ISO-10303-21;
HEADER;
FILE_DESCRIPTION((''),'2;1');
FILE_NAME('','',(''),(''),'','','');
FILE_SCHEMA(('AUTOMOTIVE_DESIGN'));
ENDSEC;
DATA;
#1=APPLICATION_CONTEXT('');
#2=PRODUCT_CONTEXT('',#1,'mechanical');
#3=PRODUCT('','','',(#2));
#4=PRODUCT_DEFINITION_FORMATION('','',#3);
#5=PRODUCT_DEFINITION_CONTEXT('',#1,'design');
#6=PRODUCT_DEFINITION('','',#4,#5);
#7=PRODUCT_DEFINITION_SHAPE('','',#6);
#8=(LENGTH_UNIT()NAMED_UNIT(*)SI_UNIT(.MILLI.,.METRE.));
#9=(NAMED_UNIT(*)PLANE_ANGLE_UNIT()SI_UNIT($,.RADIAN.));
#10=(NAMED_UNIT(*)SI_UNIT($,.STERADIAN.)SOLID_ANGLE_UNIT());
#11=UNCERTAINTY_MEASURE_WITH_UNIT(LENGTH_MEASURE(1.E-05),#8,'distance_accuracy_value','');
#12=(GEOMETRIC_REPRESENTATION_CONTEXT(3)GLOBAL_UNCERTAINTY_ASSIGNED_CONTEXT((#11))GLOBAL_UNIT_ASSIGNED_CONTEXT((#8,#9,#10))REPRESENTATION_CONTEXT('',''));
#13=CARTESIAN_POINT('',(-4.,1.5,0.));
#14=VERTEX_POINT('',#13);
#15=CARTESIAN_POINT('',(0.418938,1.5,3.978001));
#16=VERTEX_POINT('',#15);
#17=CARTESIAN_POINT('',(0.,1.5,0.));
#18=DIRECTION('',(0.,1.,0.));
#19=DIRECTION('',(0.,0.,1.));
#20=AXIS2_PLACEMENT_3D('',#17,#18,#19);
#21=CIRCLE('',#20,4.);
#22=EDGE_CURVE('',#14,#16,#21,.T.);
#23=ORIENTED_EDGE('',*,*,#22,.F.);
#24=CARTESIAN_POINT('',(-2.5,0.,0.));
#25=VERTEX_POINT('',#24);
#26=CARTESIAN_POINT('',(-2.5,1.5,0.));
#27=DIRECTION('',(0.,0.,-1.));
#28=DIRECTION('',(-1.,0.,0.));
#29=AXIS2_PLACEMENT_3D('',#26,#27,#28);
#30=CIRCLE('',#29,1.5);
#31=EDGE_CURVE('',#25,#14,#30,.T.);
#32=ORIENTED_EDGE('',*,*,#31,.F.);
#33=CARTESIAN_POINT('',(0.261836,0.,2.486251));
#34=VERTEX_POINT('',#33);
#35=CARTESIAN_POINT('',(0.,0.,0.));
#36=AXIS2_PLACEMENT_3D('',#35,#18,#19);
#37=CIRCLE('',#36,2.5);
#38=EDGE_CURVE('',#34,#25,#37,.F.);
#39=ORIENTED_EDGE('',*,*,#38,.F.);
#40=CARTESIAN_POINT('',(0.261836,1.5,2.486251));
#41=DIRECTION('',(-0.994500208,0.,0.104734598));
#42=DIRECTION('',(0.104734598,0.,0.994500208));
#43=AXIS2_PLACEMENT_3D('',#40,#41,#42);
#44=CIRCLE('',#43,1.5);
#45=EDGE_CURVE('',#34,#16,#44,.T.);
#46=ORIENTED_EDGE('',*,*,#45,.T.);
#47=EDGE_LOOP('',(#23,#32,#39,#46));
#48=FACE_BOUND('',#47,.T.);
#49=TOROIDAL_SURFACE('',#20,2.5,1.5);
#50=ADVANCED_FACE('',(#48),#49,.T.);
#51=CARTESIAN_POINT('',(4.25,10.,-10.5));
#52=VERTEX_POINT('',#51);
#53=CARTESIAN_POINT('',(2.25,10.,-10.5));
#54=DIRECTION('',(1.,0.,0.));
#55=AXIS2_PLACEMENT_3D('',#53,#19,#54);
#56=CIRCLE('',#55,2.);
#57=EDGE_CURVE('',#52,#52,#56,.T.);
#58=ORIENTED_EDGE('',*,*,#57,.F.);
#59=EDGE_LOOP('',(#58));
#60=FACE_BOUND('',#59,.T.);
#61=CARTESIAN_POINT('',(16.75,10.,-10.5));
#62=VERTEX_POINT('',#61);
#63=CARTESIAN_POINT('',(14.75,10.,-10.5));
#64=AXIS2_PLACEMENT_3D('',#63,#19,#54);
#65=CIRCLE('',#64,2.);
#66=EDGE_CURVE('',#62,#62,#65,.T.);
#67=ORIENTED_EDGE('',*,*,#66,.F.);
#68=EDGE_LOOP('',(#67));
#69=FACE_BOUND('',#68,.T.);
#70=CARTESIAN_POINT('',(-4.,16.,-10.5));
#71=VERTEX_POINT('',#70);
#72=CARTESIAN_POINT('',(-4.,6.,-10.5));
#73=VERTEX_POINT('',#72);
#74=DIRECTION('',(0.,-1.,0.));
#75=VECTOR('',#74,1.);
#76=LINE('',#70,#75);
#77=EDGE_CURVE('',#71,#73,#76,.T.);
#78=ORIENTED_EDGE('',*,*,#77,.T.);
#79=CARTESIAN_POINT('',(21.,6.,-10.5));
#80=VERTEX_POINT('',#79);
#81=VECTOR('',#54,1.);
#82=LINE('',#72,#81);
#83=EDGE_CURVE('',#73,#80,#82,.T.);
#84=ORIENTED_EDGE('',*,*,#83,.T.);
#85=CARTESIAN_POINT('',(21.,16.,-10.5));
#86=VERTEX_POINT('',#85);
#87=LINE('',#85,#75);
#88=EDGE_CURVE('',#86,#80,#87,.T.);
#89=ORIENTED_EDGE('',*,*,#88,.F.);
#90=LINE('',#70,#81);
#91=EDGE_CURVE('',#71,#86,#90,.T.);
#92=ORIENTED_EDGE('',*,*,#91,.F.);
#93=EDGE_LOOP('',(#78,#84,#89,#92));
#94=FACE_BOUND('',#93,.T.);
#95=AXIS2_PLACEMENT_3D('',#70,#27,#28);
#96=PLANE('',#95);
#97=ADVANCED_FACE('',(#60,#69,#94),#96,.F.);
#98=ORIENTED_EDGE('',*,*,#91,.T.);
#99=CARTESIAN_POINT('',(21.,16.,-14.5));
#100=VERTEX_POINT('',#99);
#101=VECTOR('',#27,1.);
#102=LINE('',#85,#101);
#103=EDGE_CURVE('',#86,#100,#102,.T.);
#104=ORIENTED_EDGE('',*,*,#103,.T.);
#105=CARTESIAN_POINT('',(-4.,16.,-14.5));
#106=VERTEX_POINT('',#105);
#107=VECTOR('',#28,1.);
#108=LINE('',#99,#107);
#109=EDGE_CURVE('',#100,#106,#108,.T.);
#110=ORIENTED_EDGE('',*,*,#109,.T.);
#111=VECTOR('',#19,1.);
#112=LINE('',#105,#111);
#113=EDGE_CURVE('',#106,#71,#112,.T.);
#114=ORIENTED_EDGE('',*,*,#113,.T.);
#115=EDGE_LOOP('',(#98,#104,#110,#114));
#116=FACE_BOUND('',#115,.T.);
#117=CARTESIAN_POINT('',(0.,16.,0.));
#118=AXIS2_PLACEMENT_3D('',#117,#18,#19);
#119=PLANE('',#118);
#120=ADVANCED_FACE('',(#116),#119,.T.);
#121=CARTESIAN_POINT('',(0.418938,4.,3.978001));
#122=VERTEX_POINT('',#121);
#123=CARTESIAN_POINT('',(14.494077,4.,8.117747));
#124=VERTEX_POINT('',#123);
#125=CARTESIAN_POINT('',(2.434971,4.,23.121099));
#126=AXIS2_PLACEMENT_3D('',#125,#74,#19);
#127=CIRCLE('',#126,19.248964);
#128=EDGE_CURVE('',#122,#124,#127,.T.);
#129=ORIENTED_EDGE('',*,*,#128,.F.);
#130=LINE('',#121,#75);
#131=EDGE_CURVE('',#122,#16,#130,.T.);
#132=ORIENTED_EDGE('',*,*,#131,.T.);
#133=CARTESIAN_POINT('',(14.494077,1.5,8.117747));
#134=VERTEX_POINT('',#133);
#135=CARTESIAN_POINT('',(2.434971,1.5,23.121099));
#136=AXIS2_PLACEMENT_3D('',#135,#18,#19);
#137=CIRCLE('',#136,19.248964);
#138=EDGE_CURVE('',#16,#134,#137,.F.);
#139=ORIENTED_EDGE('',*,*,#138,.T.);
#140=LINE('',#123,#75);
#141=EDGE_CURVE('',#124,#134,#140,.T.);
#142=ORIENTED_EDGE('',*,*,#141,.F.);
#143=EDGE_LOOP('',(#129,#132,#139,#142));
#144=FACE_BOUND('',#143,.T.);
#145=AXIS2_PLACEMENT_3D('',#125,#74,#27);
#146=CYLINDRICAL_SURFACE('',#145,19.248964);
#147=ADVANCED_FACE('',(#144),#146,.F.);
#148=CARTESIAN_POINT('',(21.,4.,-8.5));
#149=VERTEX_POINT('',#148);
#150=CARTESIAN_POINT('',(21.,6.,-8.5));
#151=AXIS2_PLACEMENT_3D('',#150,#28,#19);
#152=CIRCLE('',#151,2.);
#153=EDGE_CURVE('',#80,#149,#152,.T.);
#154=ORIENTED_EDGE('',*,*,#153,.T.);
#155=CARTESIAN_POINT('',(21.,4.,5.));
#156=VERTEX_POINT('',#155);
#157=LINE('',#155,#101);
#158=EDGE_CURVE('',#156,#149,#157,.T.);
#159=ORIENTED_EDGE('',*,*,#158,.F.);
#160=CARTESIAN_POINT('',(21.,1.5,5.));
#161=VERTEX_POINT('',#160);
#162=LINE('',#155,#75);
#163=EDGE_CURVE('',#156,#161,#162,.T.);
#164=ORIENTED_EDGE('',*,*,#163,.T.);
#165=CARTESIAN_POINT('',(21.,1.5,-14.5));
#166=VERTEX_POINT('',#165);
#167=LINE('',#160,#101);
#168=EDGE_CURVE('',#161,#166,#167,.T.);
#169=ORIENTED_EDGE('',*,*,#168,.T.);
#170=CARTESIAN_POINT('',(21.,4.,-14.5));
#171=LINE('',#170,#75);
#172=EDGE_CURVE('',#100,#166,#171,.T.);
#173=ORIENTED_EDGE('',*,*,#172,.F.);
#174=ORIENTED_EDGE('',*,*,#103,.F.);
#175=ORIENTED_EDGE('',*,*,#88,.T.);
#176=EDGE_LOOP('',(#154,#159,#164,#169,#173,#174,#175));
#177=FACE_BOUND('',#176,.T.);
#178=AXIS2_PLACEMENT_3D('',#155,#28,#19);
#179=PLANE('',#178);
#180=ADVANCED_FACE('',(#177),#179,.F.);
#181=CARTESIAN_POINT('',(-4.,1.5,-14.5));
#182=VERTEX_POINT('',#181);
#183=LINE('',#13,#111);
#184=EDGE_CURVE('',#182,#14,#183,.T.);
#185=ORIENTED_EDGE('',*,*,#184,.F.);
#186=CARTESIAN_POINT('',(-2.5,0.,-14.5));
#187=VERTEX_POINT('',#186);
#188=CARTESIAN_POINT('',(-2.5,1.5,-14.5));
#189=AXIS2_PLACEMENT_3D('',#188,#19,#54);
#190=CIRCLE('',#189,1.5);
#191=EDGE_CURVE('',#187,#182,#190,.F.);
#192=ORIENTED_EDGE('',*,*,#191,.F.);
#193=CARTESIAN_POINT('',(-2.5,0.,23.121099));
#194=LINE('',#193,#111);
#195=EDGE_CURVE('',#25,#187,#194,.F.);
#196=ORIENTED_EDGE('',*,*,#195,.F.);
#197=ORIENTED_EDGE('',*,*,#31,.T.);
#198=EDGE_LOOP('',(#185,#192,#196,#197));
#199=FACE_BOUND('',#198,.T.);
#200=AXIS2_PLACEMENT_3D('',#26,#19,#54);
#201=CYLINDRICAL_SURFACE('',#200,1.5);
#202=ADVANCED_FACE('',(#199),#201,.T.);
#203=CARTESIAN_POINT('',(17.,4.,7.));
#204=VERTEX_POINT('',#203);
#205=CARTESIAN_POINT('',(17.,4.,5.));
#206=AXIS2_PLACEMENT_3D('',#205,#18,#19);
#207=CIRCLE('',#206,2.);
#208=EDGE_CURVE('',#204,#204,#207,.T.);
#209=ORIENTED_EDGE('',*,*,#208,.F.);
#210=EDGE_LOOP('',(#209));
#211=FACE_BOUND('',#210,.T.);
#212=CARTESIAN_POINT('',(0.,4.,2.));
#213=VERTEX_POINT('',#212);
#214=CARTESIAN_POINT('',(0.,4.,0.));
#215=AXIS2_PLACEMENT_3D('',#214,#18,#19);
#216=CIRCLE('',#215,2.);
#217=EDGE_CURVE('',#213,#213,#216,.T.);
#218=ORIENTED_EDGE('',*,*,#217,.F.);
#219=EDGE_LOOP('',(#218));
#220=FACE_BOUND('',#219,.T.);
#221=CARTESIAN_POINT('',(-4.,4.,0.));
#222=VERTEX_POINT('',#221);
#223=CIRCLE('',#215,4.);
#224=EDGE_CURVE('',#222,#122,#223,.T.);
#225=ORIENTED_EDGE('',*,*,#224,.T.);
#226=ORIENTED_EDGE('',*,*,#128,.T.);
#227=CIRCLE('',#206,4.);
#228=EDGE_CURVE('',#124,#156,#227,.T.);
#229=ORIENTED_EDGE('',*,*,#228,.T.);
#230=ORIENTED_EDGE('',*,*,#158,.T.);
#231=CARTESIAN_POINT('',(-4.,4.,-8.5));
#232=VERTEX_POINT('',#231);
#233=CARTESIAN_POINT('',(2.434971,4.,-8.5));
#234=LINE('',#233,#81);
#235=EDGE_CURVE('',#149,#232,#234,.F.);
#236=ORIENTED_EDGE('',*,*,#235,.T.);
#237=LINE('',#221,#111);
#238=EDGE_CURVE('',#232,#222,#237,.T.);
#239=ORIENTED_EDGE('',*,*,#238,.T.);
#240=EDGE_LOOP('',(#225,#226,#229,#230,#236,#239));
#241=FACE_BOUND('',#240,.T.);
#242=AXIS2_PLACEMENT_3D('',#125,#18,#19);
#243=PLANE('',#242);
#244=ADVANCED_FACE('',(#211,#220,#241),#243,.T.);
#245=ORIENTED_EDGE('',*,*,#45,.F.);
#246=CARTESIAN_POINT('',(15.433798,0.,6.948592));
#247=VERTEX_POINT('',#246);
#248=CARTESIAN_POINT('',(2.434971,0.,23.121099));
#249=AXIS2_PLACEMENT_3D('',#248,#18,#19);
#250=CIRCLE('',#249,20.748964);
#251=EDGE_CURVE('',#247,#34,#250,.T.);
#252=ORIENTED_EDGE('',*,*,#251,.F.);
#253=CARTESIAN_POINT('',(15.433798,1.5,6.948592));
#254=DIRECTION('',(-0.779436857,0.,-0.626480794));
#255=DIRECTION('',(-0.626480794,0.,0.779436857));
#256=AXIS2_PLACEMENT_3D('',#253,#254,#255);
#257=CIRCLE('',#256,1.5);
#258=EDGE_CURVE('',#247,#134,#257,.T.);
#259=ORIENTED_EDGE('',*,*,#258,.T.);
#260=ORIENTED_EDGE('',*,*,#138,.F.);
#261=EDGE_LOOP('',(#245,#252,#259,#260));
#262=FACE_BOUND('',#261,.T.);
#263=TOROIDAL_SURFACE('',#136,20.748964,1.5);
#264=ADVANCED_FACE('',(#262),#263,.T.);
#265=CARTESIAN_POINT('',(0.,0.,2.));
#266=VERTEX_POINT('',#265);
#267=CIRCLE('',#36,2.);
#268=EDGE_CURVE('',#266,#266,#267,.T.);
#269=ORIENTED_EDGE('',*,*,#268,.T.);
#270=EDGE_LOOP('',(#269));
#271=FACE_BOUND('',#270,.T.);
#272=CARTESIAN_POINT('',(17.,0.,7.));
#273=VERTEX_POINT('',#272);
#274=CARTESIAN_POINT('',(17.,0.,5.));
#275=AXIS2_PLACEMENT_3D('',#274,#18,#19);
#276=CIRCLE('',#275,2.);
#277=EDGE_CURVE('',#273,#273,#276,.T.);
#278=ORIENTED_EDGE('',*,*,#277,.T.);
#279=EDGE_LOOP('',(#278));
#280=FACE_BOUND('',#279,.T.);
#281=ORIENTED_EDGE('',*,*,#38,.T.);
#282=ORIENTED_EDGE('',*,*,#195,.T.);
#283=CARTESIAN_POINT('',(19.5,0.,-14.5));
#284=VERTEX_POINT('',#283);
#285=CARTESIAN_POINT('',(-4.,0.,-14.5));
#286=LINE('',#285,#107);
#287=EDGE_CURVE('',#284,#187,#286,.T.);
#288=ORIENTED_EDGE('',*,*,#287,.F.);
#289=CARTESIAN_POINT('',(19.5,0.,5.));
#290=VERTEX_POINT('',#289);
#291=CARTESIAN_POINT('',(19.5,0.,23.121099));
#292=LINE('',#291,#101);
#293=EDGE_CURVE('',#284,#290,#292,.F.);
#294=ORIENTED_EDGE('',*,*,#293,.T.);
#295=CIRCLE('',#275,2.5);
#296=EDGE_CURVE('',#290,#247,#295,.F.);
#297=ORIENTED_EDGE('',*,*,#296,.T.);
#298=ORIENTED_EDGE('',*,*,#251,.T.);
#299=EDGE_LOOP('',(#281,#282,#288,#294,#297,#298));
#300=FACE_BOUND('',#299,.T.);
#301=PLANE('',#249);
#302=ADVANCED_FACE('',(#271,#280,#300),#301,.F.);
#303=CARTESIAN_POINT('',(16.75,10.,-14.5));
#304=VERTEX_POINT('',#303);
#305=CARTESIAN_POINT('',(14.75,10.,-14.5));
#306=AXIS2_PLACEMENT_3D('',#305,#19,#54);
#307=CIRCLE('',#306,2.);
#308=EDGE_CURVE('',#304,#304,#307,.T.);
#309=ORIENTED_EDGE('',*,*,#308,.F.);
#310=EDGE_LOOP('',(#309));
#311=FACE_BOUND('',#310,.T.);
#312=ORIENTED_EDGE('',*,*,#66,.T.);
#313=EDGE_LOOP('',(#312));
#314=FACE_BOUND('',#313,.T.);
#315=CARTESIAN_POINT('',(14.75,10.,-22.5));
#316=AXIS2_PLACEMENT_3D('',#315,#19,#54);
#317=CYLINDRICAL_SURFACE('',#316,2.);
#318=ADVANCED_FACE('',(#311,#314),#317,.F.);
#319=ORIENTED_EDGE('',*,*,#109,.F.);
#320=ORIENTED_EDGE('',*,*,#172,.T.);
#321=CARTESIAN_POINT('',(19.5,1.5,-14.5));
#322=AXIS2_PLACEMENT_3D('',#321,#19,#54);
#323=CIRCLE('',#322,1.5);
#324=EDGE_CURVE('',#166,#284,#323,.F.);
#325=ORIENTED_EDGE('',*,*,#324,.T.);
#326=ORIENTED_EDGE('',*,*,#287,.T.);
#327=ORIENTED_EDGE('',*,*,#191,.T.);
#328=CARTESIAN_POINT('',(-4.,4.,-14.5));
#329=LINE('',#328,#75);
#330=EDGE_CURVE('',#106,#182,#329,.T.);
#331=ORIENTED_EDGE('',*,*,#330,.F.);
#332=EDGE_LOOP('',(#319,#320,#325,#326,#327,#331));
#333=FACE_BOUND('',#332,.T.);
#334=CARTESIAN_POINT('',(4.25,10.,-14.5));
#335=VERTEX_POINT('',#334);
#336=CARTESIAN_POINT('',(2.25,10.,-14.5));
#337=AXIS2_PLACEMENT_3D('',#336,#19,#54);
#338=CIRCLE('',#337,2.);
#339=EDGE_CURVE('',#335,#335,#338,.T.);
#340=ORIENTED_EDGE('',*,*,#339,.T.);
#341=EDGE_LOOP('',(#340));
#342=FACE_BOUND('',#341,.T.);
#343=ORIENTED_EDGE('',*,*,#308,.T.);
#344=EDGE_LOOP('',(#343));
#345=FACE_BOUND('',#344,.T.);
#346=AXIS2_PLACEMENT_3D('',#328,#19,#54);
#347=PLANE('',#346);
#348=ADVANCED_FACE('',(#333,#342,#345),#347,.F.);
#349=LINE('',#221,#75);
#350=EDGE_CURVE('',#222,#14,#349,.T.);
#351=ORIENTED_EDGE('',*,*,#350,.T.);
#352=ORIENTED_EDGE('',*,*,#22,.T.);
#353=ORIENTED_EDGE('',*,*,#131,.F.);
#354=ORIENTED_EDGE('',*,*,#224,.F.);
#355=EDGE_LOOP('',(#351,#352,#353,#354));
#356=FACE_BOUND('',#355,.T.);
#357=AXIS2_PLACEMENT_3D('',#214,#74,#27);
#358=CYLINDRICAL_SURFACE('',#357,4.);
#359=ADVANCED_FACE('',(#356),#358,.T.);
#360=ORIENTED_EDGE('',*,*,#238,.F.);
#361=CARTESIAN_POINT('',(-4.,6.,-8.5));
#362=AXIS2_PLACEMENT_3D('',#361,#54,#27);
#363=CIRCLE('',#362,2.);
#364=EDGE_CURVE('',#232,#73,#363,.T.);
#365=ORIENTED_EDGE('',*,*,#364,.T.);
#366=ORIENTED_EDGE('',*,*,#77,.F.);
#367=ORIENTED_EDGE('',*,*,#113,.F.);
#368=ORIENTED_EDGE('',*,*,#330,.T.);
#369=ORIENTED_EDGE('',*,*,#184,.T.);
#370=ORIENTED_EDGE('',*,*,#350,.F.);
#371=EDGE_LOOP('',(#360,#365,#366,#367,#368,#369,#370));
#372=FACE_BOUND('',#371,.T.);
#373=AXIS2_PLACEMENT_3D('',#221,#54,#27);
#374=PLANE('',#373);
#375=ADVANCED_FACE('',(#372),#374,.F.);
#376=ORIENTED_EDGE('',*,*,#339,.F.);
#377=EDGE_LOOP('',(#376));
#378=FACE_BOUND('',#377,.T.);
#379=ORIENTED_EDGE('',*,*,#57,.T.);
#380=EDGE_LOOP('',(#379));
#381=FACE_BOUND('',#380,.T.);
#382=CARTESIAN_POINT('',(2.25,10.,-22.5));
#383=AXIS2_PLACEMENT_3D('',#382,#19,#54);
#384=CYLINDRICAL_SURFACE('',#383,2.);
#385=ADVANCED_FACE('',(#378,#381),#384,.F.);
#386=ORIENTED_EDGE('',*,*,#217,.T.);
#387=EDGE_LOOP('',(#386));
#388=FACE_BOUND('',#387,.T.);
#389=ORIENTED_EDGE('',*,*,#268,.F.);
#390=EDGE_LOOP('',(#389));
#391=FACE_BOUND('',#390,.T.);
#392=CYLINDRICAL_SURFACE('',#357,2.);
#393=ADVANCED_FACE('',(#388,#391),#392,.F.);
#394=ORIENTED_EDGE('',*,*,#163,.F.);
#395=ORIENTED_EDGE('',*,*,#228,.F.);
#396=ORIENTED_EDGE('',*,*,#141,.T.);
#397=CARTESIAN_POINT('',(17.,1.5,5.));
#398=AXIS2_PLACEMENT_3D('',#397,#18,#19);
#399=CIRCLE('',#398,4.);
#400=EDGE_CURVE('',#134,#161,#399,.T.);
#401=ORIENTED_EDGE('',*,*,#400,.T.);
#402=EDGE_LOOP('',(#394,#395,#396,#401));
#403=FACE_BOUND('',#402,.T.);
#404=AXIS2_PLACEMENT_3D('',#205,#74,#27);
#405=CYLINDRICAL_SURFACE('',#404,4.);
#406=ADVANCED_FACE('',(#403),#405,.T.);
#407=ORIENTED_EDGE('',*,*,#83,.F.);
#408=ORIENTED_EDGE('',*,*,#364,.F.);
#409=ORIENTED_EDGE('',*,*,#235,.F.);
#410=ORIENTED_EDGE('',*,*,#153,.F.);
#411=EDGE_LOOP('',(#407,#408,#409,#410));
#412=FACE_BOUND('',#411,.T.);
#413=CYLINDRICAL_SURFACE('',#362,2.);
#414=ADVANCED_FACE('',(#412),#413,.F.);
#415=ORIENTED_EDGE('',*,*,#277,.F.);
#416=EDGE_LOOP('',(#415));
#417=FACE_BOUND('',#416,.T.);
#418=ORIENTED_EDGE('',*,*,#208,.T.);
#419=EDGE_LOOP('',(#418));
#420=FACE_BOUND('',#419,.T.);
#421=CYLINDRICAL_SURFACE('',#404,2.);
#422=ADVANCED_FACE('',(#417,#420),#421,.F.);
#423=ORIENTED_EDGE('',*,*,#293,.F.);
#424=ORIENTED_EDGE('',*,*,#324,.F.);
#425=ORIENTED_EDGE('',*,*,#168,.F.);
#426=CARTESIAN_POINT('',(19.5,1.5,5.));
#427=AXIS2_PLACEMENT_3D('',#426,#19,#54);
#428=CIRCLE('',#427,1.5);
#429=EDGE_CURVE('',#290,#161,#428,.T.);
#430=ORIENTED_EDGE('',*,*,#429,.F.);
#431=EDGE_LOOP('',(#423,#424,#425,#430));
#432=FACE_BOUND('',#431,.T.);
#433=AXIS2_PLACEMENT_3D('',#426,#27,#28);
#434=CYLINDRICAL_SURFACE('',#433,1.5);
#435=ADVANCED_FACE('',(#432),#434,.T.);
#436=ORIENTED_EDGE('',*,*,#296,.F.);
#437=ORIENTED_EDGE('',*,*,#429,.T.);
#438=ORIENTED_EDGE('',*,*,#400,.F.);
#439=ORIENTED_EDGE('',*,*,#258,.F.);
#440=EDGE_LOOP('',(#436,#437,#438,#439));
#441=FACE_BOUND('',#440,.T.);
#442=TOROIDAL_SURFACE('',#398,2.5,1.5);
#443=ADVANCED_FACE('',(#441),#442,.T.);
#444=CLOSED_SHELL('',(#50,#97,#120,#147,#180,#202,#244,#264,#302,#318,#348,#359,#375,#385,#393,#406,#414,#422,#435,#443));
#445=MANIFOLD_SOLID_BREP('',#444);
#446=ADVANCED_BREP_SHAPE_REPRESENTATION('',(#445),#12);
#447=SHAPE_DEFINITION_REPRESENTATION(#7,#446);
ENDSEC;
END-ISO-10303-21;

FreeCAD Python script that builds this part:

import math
import FreeCAD as App
import Part
import Sketcher
from FreeCAD import Vector


def edges_at(feature, points):
    """Names of the edges that pass closest to the given points."""
    edges = feature.Shape.Edges
    near = lambda p: min(range(len(edges)), key=lambda i: edges[i].distToShape(Part.Vertex(*p))[0])
    return sorted({f"Edge{near(p) + 1}" for p in points})

doc = App.newDocument("Part")
body = doc.addObject("PartDesign::Body", "Body")

# Sketch on XZ plane
sketch1 = body.newObject("Sketcher::SketchObject", "Sketch")
sketch1.AttachmentSupport = (doc.getObject("XZ_Plane"), [""])
sketch1.MapMode = "FlatFace"
sketch1.addGeometry([
    Part.LineSegment(Vector(21, -14.5, 0), Vector(-4, -14.5, 0)),  # 0
    Part.LineSegment(Vector(-4, -14.5, 0), Vector(-4, 0, 0)),  # 1
    Part.ArcOfCircle(Part.Circle(Vector(0, 0, 0), Vector(0, 0, 1), 4), math.radians(83.988124), math.radians(180)),  # 2
    Part.ArcOfCircle(Part.Circle(Vector(2.434971, 23.121099, 0), Vector(0, 0, 1), 19.248964), math.radians(-96.011876), math.radians(-51.209043)),  # 3
    Part.ArcOfCircle(Part.Circle(Vector(17, 5, 0), Vector(0, 0, 1), 4), math.radians(0), math.radians(128.790957)),  # 4
    Part.LineSegment(Vector(21, 5, 0), Vector(21, -14.5, 0)),  # 5
    Part.Circle(Vector(17, 5, 0), Vector(0, 0, 1), 2),  # 6
    Part.Circle(Vector(0, 0, 0), Vector(0, 0, 1), 2),  # 7
], False)
sketch1.addConstraint([
    Sketcher.Constraint("Coincident", 0, 2, 1, 1),
    Sketcher.Constraint("Coincident", 1, 2, 2, 2),
    Sketcher.Constraint("Coincident", 2, 1, 3, 1),
    Sketcher.Constraint("Coincident", 3, 2, 4, 2),
    Sketcher.Constraint("Coincident", 4, 1, 5, 1),
    Sketcher.Constraint("Coincident", 5, 2, 0, 1),
    Sketcher.Constraint("Horizontal", 0),
    Sketcher.Constraint("Vertical", 1),
    Sketcher.Constraint("Vertical", 5),
    Sketcher.Constraint("Coincident", 2, 3, -1, 1),
    Sketcher.Constraint("Coincident", 7, 3, -1, 1),
    Sketcher.Constraint("Coincident", 6, 3, 4, 3),
    Sketcher.Constraint("PointOnObject", 1, 2, -1),
    Sketcher.Constraint("Diameter", 6, 4.0),
    Sketcher.Constraint("Diameter", 7, 4.0),
    Sketcher.Constraint("Radius", 2, 4.0),
    Sketcher.Constraint("Radius", 4, 4.0),
    Sketcher.Constraint("DistanceX", 0, 2, 0, 1, 25.0),
    Sketcher.Constraint("DistanceY", 1, 1, 1, 2, 14.5),
    Sketcher.Constraint("DistanceY", 5, 2, 5, 1, 19.5),
    Sketcher.Constraint("DistanceY", -1, 1, 4, 3, 5.0),
    Sketcher.Constraint("DistanceY", -1, 1, 2, 1, 3.978001),
    Sketcher.Constraint("Radius", 3, 19.248964),
    Sketcher.Constraint("DistanceX", 2, 1, 3, 2, 14.075138),
])
pad1 = body.newObject("PartDesign::Pad", "Pad")
pad1.Profile = sketch1
pad1.Length = 4
pad1.Reversed = True

# Sketch on XZ plane
sketch2 = body.newObject("Sketcher::SketchObject", "Sketch001")
sketch2.AttachmentSupport = (doc.getObject("XZ_Plane"), [""])
sketch2.MapMode = "FlatFace"
sketch2.AttachmentOffset = App.Placement(Vector(0, 0, -4), App.Rotation())
sketch2.addGeometry([
    Part.LineSegment(Vector(-4, -14.5, 0), Vector(-4, -10.5, 0)),
    Part.LineSegment(Vector(-4, -10.5, 0), Vector(21, -10.5, 0)),
    Part.LineSegment(Vector(21, -10.5, 0), Vector(21, -14.5, 0)),
    Part.LineSegment(Vector(21, -14.5, 0), Vector(-4, -14.5, 0)),
], False)
sketch2.addConstraint([
    Sketcher.Constraint("Coincident", 0, 2, 1, 1),
    Sketcher.Constraint("Coincident", 1, 2, 2, 1),
    Sketcher.Constraint("Coincident", 2, 2, 3, 1),
    Sketcher.Constraint("Coincident", 3, 2, 0, 1),
    Sketcher.Constraint("Vertical", 0),
    Sketcher.Constraint("Horizontal", 1),
    Sketcher.Constraint("Vertical", 2),
    Sketcher.Constraint("Horizontal", 3),
    Sketcher.Constraint("DistanceX", 1, 1, 1, 2, 25.0),
    Sketcher.Constraint("DistanceY", 0, 1, 0, 2, 4.0),
    Sketcher.Constraint("DistanceX", 0, 2, -1, 1, 4.0),
    Sketcher.Constraint("DistanceY", 0, 2, -1, 1, 10.5),
])
pad2 = body.newObject("PartDesign::Pad", "Pad001")
pad2.Profile = sketch2
pad2.Length = 12
pad2.Reversed = True

# Sketch on XY plane
sketch3 = body.newObject("Sketcher::SketchObject", "Sketch002")
sketch3.AttachmentSupport = (doc.getObject("XY_Plane"), [""])
sketch3.MapMode = "FlatFace"
sketch3.AttachmentOffset = App.Placement(Vector(0, 0, -10.5), App.Rotation())
sketch3.addGeometry([
    Part.Circle(Vector(2.2, 10, 0), Vector(0, 0, 1), 2),
    Part.Circle(Vector(14.8, 10, 0), Vector(0, 0, 1), 2),
], False)
sketch3.addConstraint([
    Sketcher.Constraint("Equal", 0, 1),
    Sketcher.Constraint("Horizontal", 0, 3, 1, 3),
    Sketcher.Constraint("Diameter", 0, 4.0),
    Sketcher.Constraint("DistanceY", -1, 1, 0, 3, 10.0),
    Sketcher.Constraint("DistanceX", 0, 3, 1, 3, 12.5),
    Sketcher.Constraint("DistanceX", -1, 1, 0, 3, 2.25),
])
pocket1 = body.newObject("PartDesign::Pocket", "Pocket")
pocket1.Profile = sketch3
pocket1.Length = 12
doc.recompute()

fillet = body.newObject("PartDesign::Fillet", "Fillet")
fillet.Base = (pocket1, edges_at(pocket1, [(8.5, 4, -10.5)]))
fillet.Radius = 2
doc.recompute()

fillet2 = body.newObject("PartDesign::Fillet", "Fillet001")
fillet2.Base = (fillet, edges_at(fillet, [
    (-2.676, 0, 2.973),
    (-4, 0, -7.25),
    (21, 0, -4.75),
    (18.729, 0, 8.607),
    (7.866, 0, 4.654),
]))
fillet2.Radius = 1.5

doc.recompute()
